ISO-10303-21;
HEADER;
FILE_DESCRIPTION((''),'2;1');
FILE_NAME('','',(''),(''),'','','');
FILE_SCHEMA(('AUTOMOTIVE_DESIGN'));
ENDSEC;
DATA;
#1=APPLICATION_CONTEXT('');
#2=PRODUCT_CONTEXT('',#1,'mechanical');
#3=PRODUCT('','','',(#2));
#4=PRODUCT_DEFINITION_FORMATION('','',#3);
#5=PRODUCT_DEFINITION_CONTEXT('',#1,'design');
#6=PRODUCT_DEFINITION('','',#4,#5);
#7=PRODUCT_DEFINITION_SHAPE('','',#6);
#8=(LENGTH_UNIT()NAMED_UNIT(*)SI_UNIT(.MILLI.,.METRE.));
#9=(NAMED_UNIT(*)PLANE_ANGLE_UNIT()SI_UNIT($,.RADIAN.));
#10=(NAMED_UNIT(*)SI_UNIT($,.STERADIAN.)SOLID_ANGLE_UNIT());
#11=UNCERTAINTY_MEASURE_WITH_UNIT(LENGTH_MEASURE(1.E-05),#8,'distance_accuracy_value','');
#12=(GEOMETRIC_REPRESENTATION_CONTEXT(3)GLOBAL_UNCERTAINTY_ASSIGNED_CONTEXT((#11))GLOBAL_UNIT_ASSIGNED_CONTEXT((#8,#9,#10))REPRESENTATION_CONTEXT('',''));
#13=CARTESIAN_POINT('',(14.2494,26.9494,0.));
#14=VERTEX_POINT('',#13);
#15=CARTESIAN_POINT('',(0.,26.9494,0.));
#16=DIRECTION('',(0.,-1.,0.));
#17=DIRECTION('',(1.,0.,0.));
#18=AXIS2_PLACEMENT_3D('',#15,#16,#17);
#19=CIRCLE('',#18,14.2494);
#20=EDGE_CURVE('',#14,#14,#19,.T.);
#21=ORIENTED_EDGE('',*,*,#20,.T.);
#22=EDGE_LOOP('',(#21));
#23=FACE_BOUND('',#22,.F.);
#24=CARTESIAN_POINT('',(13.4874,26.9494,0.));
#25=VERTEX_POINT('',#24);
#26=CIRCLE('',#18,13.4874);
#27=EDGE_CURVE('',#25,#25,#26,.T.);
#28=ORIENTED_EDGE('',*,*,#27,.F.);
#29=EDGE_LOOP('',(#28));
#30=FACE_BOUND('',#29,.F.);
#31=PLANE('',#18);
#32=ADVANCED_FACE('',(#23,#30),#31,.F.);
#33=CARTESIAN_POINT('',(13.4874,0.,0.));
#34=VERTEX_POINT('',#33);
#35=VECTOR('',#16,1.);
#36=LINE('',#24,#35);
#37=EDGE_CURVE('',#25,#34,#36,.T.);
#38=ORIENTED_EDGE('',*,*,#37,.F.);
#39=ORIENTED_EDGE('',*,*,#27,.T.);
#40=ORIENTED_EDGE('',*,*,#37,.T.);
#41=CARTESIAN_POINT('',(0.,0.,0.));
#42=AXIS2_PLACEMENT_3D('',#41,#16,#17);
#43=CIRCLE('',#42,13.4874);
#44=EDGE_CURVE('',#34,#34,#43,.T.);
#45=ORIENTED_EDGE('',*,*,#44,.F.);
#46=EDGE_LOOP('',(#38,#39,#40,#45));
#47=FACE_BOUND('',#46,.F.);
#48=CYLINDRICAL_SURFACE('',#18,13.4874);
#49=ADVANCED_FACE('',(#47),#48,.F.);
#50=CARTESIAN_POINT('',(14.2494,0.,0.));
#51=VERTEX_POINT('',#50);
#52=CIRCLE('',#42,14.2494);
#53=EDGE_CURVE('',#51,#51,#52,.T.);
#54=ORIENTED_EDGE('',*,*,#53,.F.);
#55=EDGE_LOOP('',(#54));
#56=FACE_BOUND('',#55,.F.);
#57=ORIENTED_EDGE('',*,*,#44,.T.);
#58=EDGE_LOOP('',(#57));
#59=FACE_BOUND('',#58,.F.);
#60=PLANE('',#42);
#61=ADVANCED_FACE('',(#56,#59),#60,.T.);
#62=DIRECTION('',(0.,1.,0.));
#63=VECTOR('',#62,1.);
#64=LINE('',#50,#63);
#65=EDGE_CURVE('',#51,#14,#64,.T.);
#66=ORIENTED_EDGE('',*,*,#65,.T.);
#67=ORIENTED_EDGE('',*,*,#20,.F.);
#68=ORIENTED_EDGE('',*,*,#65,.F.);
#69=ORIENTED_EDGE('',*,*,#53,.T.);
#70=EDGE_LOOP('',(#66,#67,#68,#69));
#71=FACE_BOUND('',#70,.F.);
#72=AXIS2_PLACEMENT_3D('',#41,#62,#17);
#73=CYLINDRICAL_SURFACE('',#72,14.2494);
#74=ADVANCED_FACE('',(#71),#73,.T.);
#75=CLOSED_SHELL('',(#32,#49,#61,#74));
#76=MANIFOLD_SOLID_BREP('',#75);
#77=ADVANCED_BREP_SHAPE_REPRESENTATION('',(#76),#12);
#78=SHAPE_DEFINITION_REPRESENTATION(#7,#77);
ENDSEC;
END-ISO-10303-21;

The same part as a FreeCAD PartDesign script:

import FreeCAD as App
import Part
import Sketcher
from FreeCAD import Vector
Q = App.Units.Quantity

doc = App.newDocument("Part")
body = doc.addObject("PartDesign::Body", "Body")

# Sketch on XY plane
sketch1 = body.newObject("Sketcher::SketchObject", "Sketch")
sketch1.AttachmentSupport = (doc.getObject("XY_Plane"), [""])
sketch1.MapMode = "FlatFace"
sketch1.addGeometry(Part.LineSegment(Vector(14.2, 26.9, 0), Vector(13.5, 26.9, 0)), False)
sketch1.addGeometry(Part.LineSegment(Vector(13.5, 26.9, 0), Vector(13.5, 0, 0)), False)
sketch1.addGeometry(Part.LineSegment(Vector(13.5, 0, 0), Vector(14.2, 0, 0)), False)
sketch1.addGeometry(Part.LineSegment(Vector(14.2, 0, 0), Vector(14.2, 26.9, 0)), False)
sketch1.addConstraint(Sketcher.Constraint("Coincident", 0, 2, 1, 1))
sketch1.addConstraint(Sketcher.Constraint("Coincident", 1, 2, 2, 1))
sketch1.addConstraint(Sketcher.Constraint("Coincident", 2, 2, 3, 1))
sketch1.addConstraint(Sketcher.Constraint("Coincident", 3, 2, 0, 1))
sketch1.addConstraint(Sketcher.Constraint("Horizontal", 0))
sketch1.addConstraint(Sketcher.Constraint("Vertical", 1))
sketch1.addConstraint(Sketcher.Constraint("Horizontal", 2))
sketch1.addConstraint(Sketcher.Constraint("Vertical", 3))
sketch1.addConstraint(Sketcher.Constraint("PointOnObject", 1, 2, -1))
sketch1.addConstraint(Sketcher.Constraint("DistanceX", 0, 2, 0, 1, Q("0.03 in")))
sketch1.addConstraint(Sketcher.Constraint("DistanceY", 1, 2, 1, 1, Q("1.061 in")))
sketch1.addConstraint(Sketcher.Constraint("DistanceX", -1, 1, 0, 2, Q("0.531 in")))
revolution = body.newObject("PartDesign::Revolution", "Revolution")
revolution.Profile = sketch1
revolution.ReferenceAxis = (sketch1, ["V_Axis"])
revolution.Angle = 360

doc.recompute()
